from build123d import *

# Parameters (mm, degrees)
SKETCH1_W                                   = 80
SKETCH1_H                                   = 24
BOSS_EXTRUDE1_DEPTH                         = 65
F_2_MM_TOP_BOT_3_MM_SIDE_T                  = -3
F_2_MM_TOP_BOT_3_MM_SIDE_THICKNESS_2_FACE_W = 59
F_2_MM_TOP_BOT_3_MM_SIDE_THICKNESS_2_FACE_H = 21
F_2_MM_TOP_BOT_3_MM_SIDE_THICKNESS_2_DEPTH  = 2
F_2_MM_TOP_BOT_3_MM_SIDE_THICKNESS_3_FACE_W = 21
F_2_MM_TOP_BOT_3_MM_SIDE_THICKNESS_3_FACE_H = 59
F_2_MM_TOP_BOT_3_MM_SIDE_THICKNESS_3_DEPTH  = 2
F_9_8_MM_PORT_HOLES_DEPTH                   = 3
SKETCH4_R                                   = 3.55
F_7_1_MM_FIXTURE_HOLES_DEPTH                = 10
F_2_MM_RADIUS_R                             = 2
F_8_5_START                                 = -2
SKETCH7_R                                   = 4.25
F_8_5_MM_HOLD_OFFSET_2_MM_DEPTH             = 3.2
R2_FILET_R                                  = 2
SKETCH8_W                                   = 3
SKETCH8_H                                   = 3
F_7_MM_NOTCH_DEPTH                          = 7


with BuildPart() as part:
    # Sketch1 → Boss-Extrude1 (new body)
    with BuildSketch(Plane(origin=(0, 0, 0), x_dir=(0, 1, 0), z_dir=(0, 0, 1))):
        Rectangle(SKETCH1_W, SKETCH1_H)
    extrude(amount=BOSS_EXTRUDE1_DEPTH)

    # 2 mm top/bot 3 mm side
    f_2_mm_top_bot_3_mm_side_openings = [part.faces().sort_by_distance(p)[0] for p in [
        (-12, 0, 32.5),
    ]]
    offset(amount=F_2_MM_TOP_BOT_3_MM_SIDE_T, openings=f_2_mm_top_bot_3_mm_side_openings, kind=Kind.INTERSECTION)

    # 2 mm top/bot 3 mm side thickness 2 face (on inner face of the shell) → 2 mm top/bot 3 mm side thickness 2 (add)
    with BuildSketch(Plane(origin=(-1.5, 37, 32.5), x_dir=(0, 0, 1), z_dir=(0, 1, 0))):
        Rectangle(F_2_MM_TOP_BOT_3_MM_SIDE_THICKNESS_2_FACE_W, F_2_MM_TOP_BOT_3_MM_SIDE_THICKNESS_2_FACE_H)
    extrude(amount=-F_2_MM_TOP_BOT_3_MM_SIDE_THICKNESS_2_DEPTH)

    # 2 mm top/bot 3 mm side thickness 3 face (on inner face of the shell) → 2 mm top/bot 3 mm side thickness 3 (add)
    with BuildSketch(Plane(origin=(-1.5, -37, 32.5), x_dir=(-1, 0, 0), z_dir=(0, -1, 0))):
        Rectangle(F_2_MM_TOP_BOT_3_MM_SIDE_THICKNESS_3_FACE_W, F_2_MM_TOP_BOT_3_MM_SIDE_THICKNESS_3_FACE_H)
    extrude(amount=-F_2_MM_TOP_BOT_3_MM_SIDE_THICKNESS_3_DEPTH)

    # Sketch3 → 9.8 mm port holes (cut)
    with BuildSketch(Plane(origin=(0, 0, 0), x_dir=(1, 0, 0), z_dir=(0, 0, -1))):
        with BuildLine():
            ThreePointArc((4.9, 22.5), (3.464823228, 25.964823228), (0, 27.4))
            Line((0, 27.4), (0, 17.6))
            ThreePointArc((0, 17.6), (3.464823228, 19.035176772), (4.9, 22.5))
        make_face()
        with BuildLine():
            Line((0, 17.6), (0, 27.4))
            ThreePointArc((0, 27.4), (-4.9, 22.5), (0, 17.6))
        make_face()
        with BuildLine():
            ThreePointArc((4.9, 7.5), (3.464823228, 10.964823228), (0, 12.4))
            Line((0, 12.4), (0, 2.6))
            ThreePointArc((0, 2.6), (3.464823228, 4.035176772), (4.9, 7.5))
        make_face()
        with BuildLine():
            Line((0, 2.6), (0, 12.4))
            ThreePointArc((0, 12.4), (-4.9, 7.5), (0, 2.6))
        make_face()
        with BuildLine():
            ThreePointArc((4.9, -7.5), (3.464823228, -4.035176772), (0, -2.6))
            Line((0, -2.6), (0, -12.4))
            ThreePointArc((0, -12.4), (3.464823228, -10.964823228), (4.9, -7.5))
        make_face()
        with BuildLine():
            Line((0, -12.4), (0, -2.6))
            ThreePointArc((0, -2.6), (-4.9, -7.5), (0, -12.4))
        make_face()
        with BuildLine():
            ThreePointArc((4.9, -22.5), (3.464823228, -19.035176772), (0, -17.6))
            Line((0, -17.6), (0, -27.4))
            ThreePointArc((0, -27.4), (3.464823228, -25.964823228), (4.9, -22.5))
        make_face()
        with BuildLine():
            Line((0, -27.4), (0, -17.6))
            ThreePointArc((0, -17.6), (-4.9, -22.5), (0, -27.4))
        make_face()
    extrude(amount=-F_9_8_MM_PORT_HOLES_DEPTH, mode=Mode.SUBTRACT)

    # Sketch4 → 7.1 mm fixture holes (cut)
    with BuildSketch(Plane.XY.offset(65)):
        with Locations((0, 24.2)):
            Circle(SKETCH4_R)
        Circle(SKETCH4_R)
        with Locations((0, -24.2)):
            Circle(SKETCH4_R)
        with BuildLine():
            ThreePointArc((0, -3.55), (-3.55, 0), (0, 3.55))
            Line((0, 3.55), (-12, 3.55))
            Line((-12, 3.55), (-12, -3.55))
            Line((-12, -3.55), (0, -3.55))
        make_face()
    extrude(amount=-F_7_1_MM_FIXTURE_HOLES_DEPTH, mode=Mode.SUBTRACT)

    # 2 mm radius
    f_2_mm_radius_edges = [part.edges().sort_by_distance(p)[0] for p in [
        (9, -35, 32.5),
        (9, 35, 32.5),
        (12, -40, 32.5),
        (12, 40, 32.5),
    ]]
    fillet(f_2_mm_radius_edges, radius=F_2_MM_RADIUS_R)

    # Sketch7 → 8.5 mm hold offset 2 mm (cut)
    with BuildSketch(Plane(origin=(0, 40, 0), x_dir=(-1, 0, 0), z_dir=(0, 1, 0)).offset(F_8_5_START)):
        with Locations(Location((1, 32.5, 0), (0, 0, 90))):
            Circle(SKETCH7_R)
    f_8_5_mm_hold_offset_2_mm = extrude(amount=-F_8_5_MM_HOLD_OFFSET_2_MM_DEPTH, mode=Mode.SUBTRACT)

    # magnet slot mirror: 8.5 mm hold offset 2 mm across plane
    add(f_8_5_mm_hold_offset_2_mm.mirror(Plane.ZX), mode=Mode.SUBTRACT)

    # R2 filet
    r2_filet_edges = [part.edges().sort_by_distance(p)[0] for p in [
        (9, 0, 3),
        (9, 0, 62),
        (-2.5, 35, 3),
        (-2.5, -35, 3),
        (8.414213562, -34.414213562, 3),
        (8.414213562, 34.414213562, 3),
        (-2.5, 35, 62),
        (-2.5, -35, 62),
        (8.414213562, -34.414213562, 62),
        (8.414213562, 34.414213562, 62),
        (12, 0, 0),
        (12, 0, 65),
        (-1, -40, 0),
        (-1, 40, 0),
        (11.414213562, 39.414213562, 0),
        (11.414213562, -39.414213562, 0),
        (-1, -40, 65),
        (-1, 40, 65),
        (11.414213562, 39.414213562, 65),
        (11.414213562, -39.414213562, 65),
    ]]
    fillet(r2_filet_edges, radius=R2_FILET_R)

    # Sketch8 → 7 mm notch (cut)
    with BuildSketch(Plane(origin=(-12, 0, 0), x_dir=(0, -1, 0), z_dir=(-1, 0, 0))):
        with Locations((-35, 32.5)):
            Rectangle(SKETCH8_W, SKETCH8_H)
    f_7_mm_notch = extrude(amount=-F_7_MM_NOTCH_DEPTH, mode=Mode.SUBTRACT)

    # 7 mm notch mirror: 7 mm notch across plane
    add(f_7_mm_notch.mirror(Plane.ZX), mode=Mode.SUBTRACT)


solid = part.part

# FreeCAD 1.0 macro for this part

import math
import FreeCAD as App
import Part
import Sketcher
from FreeCAD import Vector


def edges_at(feature, points):
    """Names of the edges that pass closest to the given points."""
    edges = feature.Shape.Edges
    near = lambda p: min(range(len(edges)), key=lambda i: edges[i].distToShape(Part.Vertex(*p))[0])
    return sorted({f"Edge{near(p) + 1}" for p in points})


def faces_at(feature, points):
    """Names of the faces that lie closest to the given points."""
    faces = feature.Shape.Faces
    near = lambda p: min(range(len(faces)), key=lambda i: faces[i].distToShape(Part.Vertex(*p))[0])
    return sorted({f"Face{near(p) + 1}" for p in points})


def add_polygon(sketch, points):
    """Adds a closed chain of lines whose ends are joined by coincident constraints."""
    first, n = sketch.GeometryCount, len(points)
    for a, b in zip(points, points[1:] + points[:1]):
        sketch.addGeometry(Part.LineSegment(App.Vector(*a, 0), App.Vector(*b, 0)), False)
    for i in range(n):
        sketch.addConstraint(Sketcher.Constraint("Coincident", first + i, 2, first + (i + 1) % n, 1))

doc = App.newDocument("Part")
params = doc.addObject("Spreadsheet::Sheet", "Params")
for row, (alias, value) in enumerate([
    ("sketch1_width", "24 mm"),
    ("sketch1_height", "80 mm"),
    ("pad1_length", "65 mm"),
    ("thickness_wall", "3 mm"),
    ("sketch2_width", "21 mm"),
    ("sketch2_height", "59 mm"),
    ("pad2_length", "2 mm"),
    ("sketch3_width", "21 mm"),
    ("sketch3_height", "59 mm"),
    ("pad3_length", "2 mm"),
    ("sketch4_radius", "4.9 mm"),
    ("pocket1_length", "3 mm"),
    ("sketch5_diameter", "7.1 mm"),
    ("sketch5_width", "12 mm"),
    ("pocket2_length", "10 mm"),
    ("fillet_radius", "2 mm"),
    ("sketch6_diameter", "8.5 mm"),
    ("pocket3_length", "3.2 mm"),
    ("fillet2_radius", "2 mm"),
    ("sketch7_width", "3 mm"),
    ("pocket4_length", "7 mm"),
], start=1):
    params.set(f"A{row}", alias)
    params.set(f"B{row}", "=" + value)
    params.setAlias(f"B{row}", alias)

body = doc.addObject("PartDesign::Body", "Body")

# Sketch on XY plane
sketch1 = body.newObject("Sketcher::SketchObject", "Sketch")
sketch1.AttachmentSupport = (doc.getObject("XY_Plane"), [""])
sketch1.MapMode = "FlatFace"
add_polygon(sketch1, [(-12, -40), (12, -40), (12, 40), (-12, 40)])  # lines 0-3
sketch1.addConstraint([
    Sketcher.Constraint("Horizontal", 0),
    Sketcher.Constraint("Vertical", 1),
    Sketcher.Constraint("Horizontal", 2),
    Sketcher.Constraint("Vertical", 3),
    Sketcher.Constraint("Symmetric", 0, 2, 2, 2, -1, 1),
    Sketcher.Constraint("DistanceX", 0, 1, 0, 2, 24.0),
    Sketcher.Constraint("DistanceY", 1, 1, 1, 2, 80.0),
])
sketch1.setExpression("Constraints[9]", "Params.sketch1_width")
sketch1.setExpression("Constraints[10]", "Params.sketch1_height")
pad1 = body.newObject("PartDesign::Pad", "Pad")
pad1.Profile = sketch1
pad1.setExpression("Length", "Params.pad1_length")
doc.recompute()

thickness = body.newObject("PartDesign::Thickness", "Thickness")
thickness.Base = (pad1, faces_at(pad1, [(-12, 0, 32.5)]))
thickness.setExpression("Value", "Params.thickness_wall")
thickness.Reversed = True
thickness.Join = "Intersection"

# Sketch on XZ plane
sketch2 = body.newObject("Sketcher::SketchObject", "Sketch001")
sketch2.AttachmentSupport = (doc.getObject("XZ_Plane"), [""])
sketch2.MapMode = "FlatFace"
sketch2.AttachmentOffset = App.Placement(Vector(0, 0, -37), App.Rotation())
add_polygon(sketch2, [(9, 3), (-12, 3), (-12, 62), (9, 62)])  # lines 0-3
sketch2.addConstraint([
    Sketcher.Constraint("Horizontal", 0),
    Sketcher.Constraint("Vertical", 1),
    Sketcher.Constraint("Horizontal", 2),
    Sketcher.Constraint("Vertical", 3),
    Sketcher.Constraint("DistanceX", 0, 2, 0, 1, 21.0),
    Sketcher.Constraint("DistanceY", 1, 1, 1, 2, 59.0),
    Sketcher.Constraint("DistanceX", 0, 2, -1, 1, 12.0),
    Sketcher.Constraint("DistanceY", -1, 1, 0, 2, 3.0),
])
sketch2.setExpression("Constraints[8]", "Params.sketch2_width")
sketch2.setExpression("Constraints[9]", "Params.sketch2_height")
pad2 = body.newObject("PartDesign::Pad", "Pad001")
pad2.Profile = sketch2
pad2.setExpression("Length", "Params.pad2_length")

# Sketch on XZ plane
sketch3 = body.newObject("Sketcher::SketchObject", "Sketch002")
sketch3.AttachmentSupport = (doc.getObject("XZ_Plane"), [""])
sketch3.MapMode = "FlatFace"
sketch3.AttachmentOffset = App.Placement(Vector(0, 0, 37), App.Rotation())
add_polygon(sketch3, [(9, 3), (9, 62), (-12, 62), (-12, 3)])  # lines 0-3
sketch3.addConstraint([
    Sketcher.Constraint("Vertical", 0),
    Sketcher.Constraint("Horizontal", 1),
    Sketcher.Constraint("Vertical", 2),
    Sketcher.Constraint("Horizontal", 3),
    Sketcher.Constraint("DistanceX", 1, 2, 1, 1, 21.0),
    Sketcher.Constraint("DistanceY", 0, 1, 0, 2, 59.0),
    Sketcher.Constraint("DistanceX", -1, 1, 0, 2, 9.0),
    Sketcher.Constraint("DistanceY", -1, 1, 0, 2, 62.0),
])
sketch3.setExpression("Constraints[8]", "Params.sketch3_width")
sketch3.setExpression("Constraints[9]", "Params.sketch3_height")
pad3 = body.newObject("PartDesign::Pad", "Pad002")
pad3.Profile = sketch3
pad3.setExpression("Length", "Params.pad3_length")
pad3.Reversed = True

# Sketch on XY plane
sketch4 = body.newObject("Sketcher::SketchObject", "Sketch003")
sketch4.AttachmentSupport = (doc.getObject("XY_Plane"), [""])
sketch4.MapMode = "FlatFace"
sketch4.addGeometry([
    Part.ArcOfCircle(Part.Circle(Vector(0, -22.5, 0), Vector(0, 0, 1), 4.9), math.radians(-90), math.radians(0)),  # 0
    Part.ArcOfCircle(Part.Circle(Vector(0, -22.5, 0), Vector(0, 0, 1), 4.9), math.radians(90), math.radians(270)),  # 1
    Part.ArcOfCircle(Part.Circle(Vector(0, -22.5, 0), Vector(0, 0, 1), 4.9), math.radians(0), math.radians(90)),  # 2
    Part.ArcOfCircle(Part.Circle(Vector(0, -7.5, 0), Vector(0, 0, 1), 4.9), math.radians(-90), math.radians(0)),  # 3
    Part.ArcOfCircle(Part.Circle(Vector(0, -7.5, 0), Vector(0, 0, 1), 4.9), math.radians(90), math.radians(270)),  # 4
    Part.ArcOfCircle(Part.Circle(Vector(0, -7.5, 0), Vector(0, 0, 1), 4.9), math.radians(0), math.radians(90)),  # 5
    Part.ArcOfCircle(Part.Circle(Vector(0, 7.5, 0), Vector(0, 0, 1), 4.9), math.radians(-90), math.radians(0)),  # 6
    Part.ArcOfCircle(Part.Circle(Vector(0, 7.5, 0), Vector(0, 0, 1), 4.9), math.radians(90), math.radians(270)),  # 7
    Part.ArcOfCircle(Part.Circle(Vector(0, 7.5, 0), Vector(0, 0, 1), 4.9), math.radians(0), math.radians(90)),  # 8
    Part.ArcOfCircle(Part.Circle(Vector(0, 22.5, 0), Vector(0, 0, 1), 4.9), math.radians(-90), math.radians(0)),  # 9
    Part.ArcOfCircle(Part.Circle(Vector(0, 22.5, 0), Vector(0, 0, 1), 4.9), math.radians(90), math.radians(270)),  # 10
    Part.ArcOfCircle(Part.Circle(Vector(0, 22.5, 0), Vector(0, 0, 1), 4.9), math.radians(0), math.radians(90)),  # 11
], False)
sketch4.addConstraint([
    Sketcher.Constraint("Tangent", 0, 1, 1, 2),
    Sketcher.Constraint("Tangent", 1, 1, 2, 2),
    Sketcher.Constraint("Tangent", 2, 1, 0, 2),
    Sketcher.Constraint("Tangent", 3, 1, 4, 2),
    Sketcher.Constraint("Tangent", 4, 1, 5, 2),
    Sketcher.Constraint("Tangent", 5, 1, 3, 2),
    Sketcher.Constraint("Tangent", 6, 1, 7, 2),
    Sketcher.Constraint("Tangent", 7, 1, 8, 2),
    Sketcher.Constraint("Tangent", 8, 1, 6, 2),
    Sketcher.Constraint("Tangent", 9, 1, 10, 2),
    Sketcher.Constraint("Tangent", 10, 1, 11, 2),
    Sketcher.Constraint("Tangent", 11, 1, 9, 2),
    Sketcher.Constraint("Equal", 2, 3),
    Sketcher.Constraint("Equal", 5, 6),
    Sketcher.Constraint("Equal", 8, 9),
    Sketcher.Constraint("Symmetric", 3, 3, 6, 3, -1, 1),
    Sketcher.Constraint("Symmetric", 0, 3, 9, 3, -1, 1),
    Sketcher.Constraint("Symmetric", 5, 1, 8, 1, -1),
    Sketcher.Constraint("Symmetric", 2, 1, 11, 1, -1),
    Sketcher.Constraint("PointOnObject", 0, 1, -2),
    Sketcher.Constraint("PointOnObject", 1, 1, -2),
    Sketcher.Constraint("PointOnObject", 3, 1, -2),
    Sketcher.Constraint("PointOnObject", 4, 1, -2),
    Sketcher.Constraint("PointOnObject", 6, 1, -2),
    Sketcher.Constraint("PointOnObject", 7, 1, -2),
    Sketcher.Constraint("PointOnObject", 9, 1, -2),
    Sketcher.Constraint("PointOnObject", 10, 1, -2),
    Sketcher.Constraint("Horizontal", 1, 3, 2, 1),
    Sketcher.Constraint("Horizontal", 4, 3, 5, 1),
    Sketcher.Constraint("Radius", 0, 4.9),
    Sketcher.Constraint("DistanceY", 2, 3, 3, 3, 15.0),
    Sketcher.Constraint("DistanceY", 5, 3, 6, 3, 15.0),
])
sketch4.setExpression("Constraints[29]", "Params.sketch4_radius")
pocket1 = body.newObject("PartDesign::Pocket", "Pocket")
pocket1.Profile = sketch4
pocket1.setExpression("Length", "Params.pocket1_length")
pocket1.Reversed = True

# Sketch on XY plane
sketch5 = body.newObject("Sketcher::SketchObject", "Sketch004")
sketch5.AttachmentSupport = (doc.getObject("XY_Plane"), [""])
sketch5.MapMode = "FlatFace"
sketch5.AttachmentOffset = App.Placement(Vector(0, 0, 65), App.Rotation())
sketch5.addGeometry([
    Part.Circle(Vector(0, 24.2, 0), Vector(0, 0, 1), 3.55),  # 0
    Part.LineSegment(Vector(0, 3.55, 0), Vector(-12, 3.55, 0)),  # 1
    Part.LineSegment(Vector(-12, 3.55, 0), Vector(-12, -3.55, 0)),  # 2
    Part.LineSegment(Vector(-12, -3.55, 0), Vector(0, -3.55, 0)),  # 3
    Part.ArcOfCircle(Part.Circle(Vector(0, 0, 0), Vector(0, 0, 1), 3.55), math.radians(-90), math.radians(90)),  # 4
    Part.Circle(Vector(0, -24.2, 0), Vector(0, 0, 1), 3.55),  # 5
], False)
sketch5.addConstraint([
    Sketcher.Constraint("Coincident", 1, 2, 2, 1),
    Sketcher.Constraint("Coincident", 2, 2, 3, 1),
    Sketcher.Constraint("Tangent", 3, 2, 4, 1),
    Sketcher.Constraint("Tangent", 4, 2, 1, 1),
    Sketcher.Constraint("Horizontal", 1),
    Sketcher.Constraint("Vertical", 2),
    Sketcher.Constraint("Horizontal", 3),
    Sketcher.Constraint("Coincident", 4, 3, -1, 1),
    Sketcher.Constraint("Equal", 0, 4),
    Sketcher.Constraint("Equal", 4, 5),
    Sketcher.Constraint("Symmetric", 0, 3, 5, 3, -1, 1),
    Sketcher.Constraint("PointOnObject", 0, 3, -2),
    Sketcher.Constraint("Diameter", 0, 7.1),
    Sketcher.Constraint("DistanceX", 1, 2, 1, 1, 12.0),
    Sketcher.Constraint("DistanceY", -1, 1, 0, 3, 24.2),
])
sketch5.setExpression("Constraints[12]", "Params.sketch5_diameter")
sketch5.setExpression("Constraints[13]", "Params.sketch5_width")
pocket2 = body.newObject("PartDesign::Pocket", "Pocket001")
pocket2.Profile = sketch5
pocket2.setExpression("Length", "Params.pocket2_length")
doc.recompute()

fillet = body.newObject("PartDesign::Fillet", "Fillet")
fillet.Base = (pocket2, edges_at(pocket2, [
    (9, -35, 32.5),
    (9, 35, 32.5),
    (12, -40, 32.5),
    (12, 40, 32.5),
]))
fillet.setExpression("Radius", "Params.fillet_radius")

# Sketch on XZ plane
sketch6 = body.newObject("Sketcher::SketchObject", "Sketch005")
sketch6.AttachmentSupport = (doc.getObject("XZ_Plane"), [""])
sketch6.MapMode = "FlatFace"
sketch6.AttachmentOffset = App.Placement(Vector(0, 0, -38), App.Rotation())
sketch6.addGeometry(Part.Circle(Vector(-1, 32.5, 0), Vector(0, 0, 1), 4.25), False)
sketch6.addConstraint([
    Sketcher.Constraint("Diameter", 0, 8.5),
    Sketcher.Constraint("DistanceX", 0, 3, -1, 1, 1.0),
    Sketcher.Constraint("DistanceY", -1, 1, 0, 3, 32.5),
])
sketch6.setExpression("Constraints[0]", "Params.sketch6_diameter")
pocket3 = body.newObject("PartDesign::Pocket", "Pocket002")
pocket3.Profile = sketch6
pocket3.setExpression("Length", "Params.pocket3_length")
pocket3.Reversed = True
doc.recompute()

mirrored = body.newObject("PartDesign::Mirrored", "Mirrored")
mirrored.Originals = [pocket3]
mirrored.MirrorPlane = (doc.getObject("XZ_Plane"), [""])
body.Tip = mirrored
doc.recompute()

fillet2 = body.newObject("PartDesign::Fillet", "Fillet001")
fillet2.Base = (mirrored, edges_at(mirrored, [
    (9, 0, 3),
    (9, 0, 62),
    (-2.5, 35, 3),
    (-2.5, -35, 3),
    (8.414, -34.414, 3),
    (8.414, 34.414, 3),
    (-2.5, 35, 62),
    (-2.5, -35, 62),
    (8.414, -34.414, 62),
    (8.414, 34.414, 62),
    (12, 0, 0),
    (12, 0, 65),
    (-1, -40, 0),
    (-1, 40, 0),
    (11.414, 39.414, 0),
    (11.414, -39.414, 0),
    (-1, -40, 65),
    (-1, 40, 65),
    (11.414, 39.414, 65),
    (11.414, -39.414, 65),
]))
fillet2.setExpression("Radius", "Params.fillet2_radius")

# Sketch on YZ plane
sketch7 = body.newObject("Sketcher::SketchObject", "Sketch006")
sketch7.AttachmentSupport = (doc.getObject("YZ_Plane"), [""])
sketch7.MapMode = "FlatFace"
sketch7.AttachmentOffset = App.Placement(Vector(0, 0, -12), App.Rotation())
add_polygon(sketch7, [(36.5, 34), (36.5, 31), (33.5, 31), (33.5, 34)])  # lines 0-3
sketch7.addConstraint([
    Sketcher.Constraint("Vertical", 0),
    Sketcher.Constraint("Horizontal", 1),
    Sketcher.Constraint("Vertical", 2),
    Sketcher.Constraint("Horizontal", 3),
    Sketcher.Constraint("Equal", 3, 0),
    Sketcher.Constraint("DistanceX", 1, 2, 1, 1, 3.0),
    Sketcher.Constraint("DistanceY", -1, 1, 0, 2, 31.0),
    Sketcher.Constraint("DistanceX", -1, 1, 0, 2, 36.5),
])
sketch7.setExpression("Constraints[9]", "Params.sketch7_width")
pocket4 = body.newObject("PartDesign::Pocket", "Pocket003")
pocket4.Profile = sketch7
pocket4.setExpression("Length", "Params.pocket4_length")
pocket4.Reversed = True
doc.recompute()

mirrored2 = body.newObject("PartDesign::Mirrored", "Mirrored001")
mirrored2.Originals = [pocket4]
mirrored2.MirrorPlane = (doc.getObject("XZ_Plane"), [""])
body.Tip = mirrored2

doc.recompute()
